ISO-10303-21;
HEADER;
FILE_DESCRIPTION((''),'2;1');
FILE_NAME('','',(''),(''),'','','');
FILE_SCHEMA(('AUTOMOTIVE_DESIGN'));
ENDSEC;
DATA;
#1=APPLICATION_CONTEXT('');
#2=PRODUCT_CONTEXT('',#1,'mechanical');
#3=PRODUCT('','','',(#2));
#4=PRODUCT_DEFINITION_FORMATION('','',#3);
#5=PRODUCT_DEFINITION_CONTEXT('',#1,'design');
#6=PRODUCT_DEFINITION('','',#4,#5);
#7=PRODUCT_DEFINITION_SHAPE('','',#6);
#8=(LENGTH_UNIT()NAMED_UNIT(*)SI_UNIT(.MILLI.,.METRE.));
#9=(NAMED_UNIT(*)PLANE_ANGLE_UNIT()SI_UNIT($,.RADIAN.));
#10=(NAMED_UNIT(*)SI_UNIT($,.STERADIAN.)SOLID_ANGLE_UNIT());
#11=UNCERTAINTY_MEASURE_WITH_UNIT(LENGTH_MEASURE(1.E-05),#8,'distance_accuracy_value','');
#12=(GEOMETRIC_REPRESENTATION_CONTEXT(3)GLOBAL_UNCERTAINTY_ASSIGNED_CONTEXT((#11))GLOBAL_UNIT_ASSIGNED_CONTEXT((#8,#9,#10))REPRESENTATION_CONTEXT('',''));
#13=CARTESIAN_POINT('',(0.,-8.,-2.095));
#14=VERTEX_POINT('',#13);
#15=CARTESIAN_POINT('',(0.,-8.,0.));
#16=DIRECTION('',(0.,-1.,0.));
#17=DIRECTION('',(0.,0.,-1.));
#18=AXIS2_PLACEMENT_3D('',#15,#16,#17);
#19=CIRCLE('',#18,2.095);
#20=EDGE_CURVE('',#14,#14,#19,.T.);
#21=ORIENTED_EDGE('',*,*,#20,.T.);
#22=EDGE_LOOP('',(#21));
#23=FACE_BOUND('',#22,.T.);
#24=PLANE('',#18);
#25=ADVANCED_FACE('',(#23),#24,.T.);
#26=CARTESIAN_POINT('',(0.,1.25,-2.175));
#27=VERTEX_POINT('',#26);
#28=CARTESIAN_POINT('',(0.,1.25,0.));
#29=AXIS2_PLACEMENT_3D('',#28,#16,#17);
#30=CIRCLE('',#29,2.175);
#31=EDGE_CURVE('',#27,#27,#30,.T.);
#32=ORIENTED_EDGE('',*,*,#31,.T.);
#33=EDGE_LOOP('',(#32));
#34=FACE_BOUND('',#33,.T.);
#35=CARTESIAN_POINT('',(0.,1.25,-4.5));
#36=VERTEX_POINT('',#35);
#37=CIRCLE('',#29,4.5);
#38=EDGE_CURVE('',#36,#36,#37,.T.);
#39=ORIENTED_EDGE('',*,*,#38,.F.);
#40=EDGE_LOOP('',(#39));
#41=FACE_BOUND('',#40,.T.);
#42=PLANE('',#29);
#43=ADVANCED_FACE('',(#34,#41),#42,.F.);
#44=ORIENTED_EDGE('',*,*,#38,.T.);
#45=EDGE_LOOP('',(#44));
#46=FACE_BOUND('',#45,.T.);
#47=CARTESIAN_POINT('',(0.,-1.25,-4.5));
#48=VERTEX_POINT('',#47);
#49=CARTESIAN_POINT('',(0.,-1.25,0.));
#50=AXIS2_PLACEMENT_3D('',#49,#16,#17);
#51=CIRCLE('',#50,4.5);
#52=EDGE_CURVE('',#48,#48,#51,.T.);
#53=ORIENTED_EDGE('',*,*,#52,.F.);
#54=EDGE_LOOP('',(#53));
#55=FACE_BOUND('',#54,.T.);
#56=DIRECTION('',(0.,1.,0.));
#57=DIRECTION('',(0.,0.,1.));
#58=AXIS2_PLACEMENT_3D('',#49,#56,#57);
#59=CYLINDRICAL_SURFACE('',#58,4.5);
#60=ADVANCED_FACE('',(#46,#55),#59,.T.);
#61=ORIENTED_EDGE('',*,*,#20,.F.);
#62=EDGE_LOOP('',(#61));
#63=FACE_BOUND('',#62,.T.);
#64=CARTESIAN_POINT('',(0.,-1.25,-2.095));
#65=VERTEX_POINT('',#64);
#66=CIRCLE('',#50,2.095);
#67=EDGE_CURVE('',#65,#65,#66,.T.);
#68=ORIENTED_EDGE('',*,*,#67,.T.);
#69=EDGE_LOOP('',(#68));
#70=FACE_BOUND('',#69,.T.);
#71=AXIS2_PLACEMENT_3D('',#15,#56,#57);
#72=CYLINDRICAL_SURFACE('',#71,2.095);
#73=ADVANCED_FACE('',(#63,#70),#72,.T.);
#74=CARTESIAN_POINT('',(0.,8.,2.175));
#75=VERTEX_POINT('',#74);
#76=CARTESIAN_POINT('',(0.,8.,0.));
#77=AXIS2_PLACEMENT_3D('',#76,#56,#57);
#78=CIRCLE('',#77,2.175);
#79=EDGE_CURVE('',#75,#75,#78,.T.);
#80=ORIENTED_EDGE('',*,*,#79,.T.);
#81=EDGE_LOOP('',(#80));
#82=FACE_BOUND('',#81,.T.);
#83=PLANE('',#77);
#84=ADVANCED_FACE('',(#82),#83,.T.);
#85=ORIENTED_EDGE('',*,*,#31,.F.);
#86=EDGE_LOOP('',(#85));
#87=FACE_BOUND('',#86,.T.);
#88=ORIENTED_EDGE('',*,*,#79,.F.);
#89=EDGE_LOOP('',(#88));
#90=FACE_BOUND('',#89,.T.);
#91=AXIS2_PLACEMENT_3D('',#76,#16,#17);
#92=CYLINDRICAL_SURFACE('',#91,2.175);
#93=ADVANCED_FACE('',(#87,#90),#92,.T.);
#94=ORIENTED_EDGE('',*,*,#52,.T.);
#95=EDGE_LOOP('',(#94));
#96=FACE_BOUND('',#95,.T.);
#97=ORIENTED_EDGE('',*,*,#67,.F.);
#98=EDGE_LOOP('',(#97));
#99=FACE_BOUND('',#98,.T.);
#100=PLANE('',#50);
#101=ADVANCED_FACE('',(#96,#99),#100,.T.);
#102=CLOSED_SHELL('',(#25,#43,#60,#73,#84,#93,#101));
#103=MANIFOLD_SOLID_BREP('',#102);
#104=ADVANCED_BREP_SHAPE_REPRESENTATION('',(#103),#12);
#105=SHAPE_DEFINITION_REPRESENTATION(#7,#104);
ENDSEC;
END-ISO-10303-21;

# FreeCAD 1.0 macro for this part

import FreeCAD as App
import Part
import Sketcher

V = App.Vector
Q = App.Units.Quantity

doc = App.newDocument("Part")
params = doc.addObject("Spreadsheet::Sheet", "Params")
for row, (alias, value) in enumerate([
    ("sketch1_diameter", "4.35 mm"),
    ("pad1_length", "8 mm"),
    ("sketch2_diameter", "4.19 mm"),
    ("pad2_length", "8 mm"),
    ("sketch3_diameter", "9 mm"),
    ("pad3_length", "2.5 mm"),
], start=1):
    params.set(f"A{row}", alias)
    params.set(f"B{row}", "=" + value)
    params.setAlias(f"B{row}", alias)

body = doc.addObject("PartDesign::Body", "Body")

sketch1 = body.newObject("Sketcher::SketchObject", "Sketch")
sketch1.AttachmentSupport = (doc.getObject("XZ_Plane"), [""])
sketch1.MapMode = "FlatFace"
sketch1.addGeometry(Part.Circle(V(0, 0, 0), V(0, 0, 1), 2.2), False)
sketch1.addConstraint(Sketcher.Constraint("Coincident", 0, 3, -1, 1))
sketch1.addConstraint(Sketcher.Constraint("Diameter", 0, Q("4.35 mm")))
sketch1.setExpression("Constraints[1]", "Params.sketch1_diameter")
pad1 = body.newObject("PartDesign::Pad", "Pad")
pad1.Profile = sketch1
pad1.setExpression("Length", "Params.pad1_length")
pad1.Reversed = True

sketch2 = body.newObject("Sketcher::SketchObject", "Sketch001")
sketch2.AttachmentSupport = (doc.getObject("XZ_Plane"), [""])
sketch2.MapMode = "FlatFace"
sketch2.addGeometry(Part.Circle(V(0, 0, 0), V(0, 0, 1), 2.1), False)
sketch2.addConstraint(Sketcher.Constraint("Coincident", 0, 3, -1, 1))
sketch2.addConstraint(Sketcher.Constraint("Diameter", 0, Q("4.19 mm")))
sketch2.setExpression("Constraints[1]", "Params.sketch2_diameter")
pad2 = body.newObject("PartDesign::Pad", "Pad001")
pad2.Profile = sketch2
pad2.setExpression("Length", "Params.pad2_length")

sketch3 = body.newObject("Sketcher::SketchObject", "Sketch002")
sketch3.AttachmentSupport = (doc.getObject("XZ_Plane"), [""])
sketch3.MapMode = "FlatFace"
sketch3.addGeometry(Part.Circle(V(0, 0, 0), V(0, 0, 1), 4.5), False)
sketch3.addConstraint(Sketcher.Constraint("Coincident", 0, 3, -1, 1))
sketch3.addConstraint(Sketcher.Constraint("Diameter", 0, Q("9 mm")))
sketch3.setExpression("Constraints[1]", "Params.sketch3_diameter")
pad3 = body.newObject("PartDesign::Pad", "Pad002")
pad3.Profile = sketch3
pad3.setExpression("Length", "Params.pad3_length")
pad3.Midplane = True

doc.recompute()
